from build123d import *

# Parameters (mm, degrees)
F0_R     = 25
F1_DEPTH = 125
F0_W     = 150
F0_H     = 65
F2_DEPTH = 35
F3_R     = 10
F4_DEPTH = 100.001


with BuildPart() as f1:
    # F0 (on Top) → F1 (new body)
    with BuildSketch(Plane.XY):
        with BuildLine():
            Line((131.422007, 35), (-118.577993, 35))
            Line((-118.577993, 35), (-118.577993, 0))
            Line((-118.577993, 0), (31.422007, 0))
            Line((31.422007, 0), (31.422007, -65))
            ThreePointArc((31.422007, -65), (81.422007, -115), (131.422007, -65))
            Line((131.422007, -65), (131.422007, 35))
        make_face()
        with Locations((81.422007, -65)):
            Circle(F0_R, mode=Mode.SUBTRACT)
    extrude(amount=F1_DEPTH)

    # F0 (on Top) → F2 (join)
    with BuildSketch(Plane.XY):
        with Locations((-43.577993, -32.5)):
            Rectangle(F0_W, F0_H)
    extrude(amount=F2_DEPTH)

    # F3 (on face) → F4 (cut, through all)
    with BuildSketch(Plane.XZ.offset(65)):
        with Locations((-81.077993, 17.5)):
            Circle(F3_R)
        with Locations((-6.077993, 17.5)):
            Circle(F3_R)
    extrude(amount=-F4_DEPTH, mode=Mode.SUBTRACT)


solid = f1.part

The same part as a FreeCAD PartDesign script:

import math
import FreeCAD as App
import Part
import Sketcher
Q = App.Units.Quantity

doc = App.newDocument("Part")
body = doc.addObject("PartDesign::Body", "Body")

# Sketch on XY plane
sketch1 = body.newObject("Sketcher::SketchObject", "Sketch")
sketch1.AttachmentSupport = (doc.getObject("XY_Plane"), [""])
sketch1.MapMode = "FlatFace"
sketch1.addGeometry([
    Part.LineSegment(App.Vector(131, 35, 0), App.Vector(-119, 35, 0)),  # 0
    Part.LineSegment(App.Vector(-119, 35, 0), App.Vector(-119, 0, 0)),  # 1
    Part.LineSegment(App.Vector(-119, 0, 0), App.Vector(31, 0, 0)),  # 2
    Part.LineSegment(App.Vector(31, 0, 0), App.Vector(31, -65, 0)),  # 3
    Part.ArcOfCircle(Part.Circle(App.Vector(81, -65, 0), App.Vector(0, 0, 1), 50), math.radians(180), math.radians(360)),  # 4
    Part.LineSegment(App.Vector(131, -65, 0), App.Vector(131, 35, 0)),  # 5
    Part.Circle(App.Vector(81, -65, 0), App.Vector(0, 0, 1), 25),  # 6
], False)
sketch1.addConstraint([
    Sketcher.Constraint("Coincident", 0, 2, 1, 1),
    Sketcher.Constraint("Coincident", 1, 2, 2, 1),
    Sketcher.Constraint("Coincident", 2, 2, 3, 1),
    Sketcher.Constraint("Tangent", 3, 2, 4, 1),
    Sketcher.Constraint("Tangent", 4, 2, 5, 1),
    Sketcher.Constraint("Coincident", 5, 2, 0, 1),
    Sketcher.Constraint("Horizontal", 0),
    Sketcher.Constraint("Vertical", 1),
    Sketcher.Constraint("Horizontal", 2),
    Sketcher.Constraint("Vertical", 3),
    Sketcher.Constraint("Vertical", 5),
    Sketcher.Constraint("Coincident", 6, 3, 4, 3),
    Sketcher.Constraint("PointOnObject", 1, 2, -1),
    Sketcher.Constraint("Diameter", 6, Q("50 mm")),
    Sketcher.Constraint("Radius", 4, Q("50 mm")),
    Sketcher.Constraint("DistanceX", 0, 2, 0, 1, Q("250 mm")),
    Sketcher.Constraint("DistanceY", 1, 2, 1, 1, Q("35 mm")),
    Sketcher.Constraint("DistanceY", 3, 2, 3, 1, Q("65 mm")),
    Sketcher.Constraint("DistanceX", -1, 1, 4, 3, Q("81.422007 mm")),
])
pad1 = body.newObject("PartDesign::Pad", "Pad")
pad1.Profile = sketch1
pad1.Length = 125

# Sketch on XY plane
sketch2 = body.newObject("Sketcher::SketchObject", "Sketch001")
sketch2.AttachmentSupport = (doc.getObject("XY_Plane"), [""])
sketch2.MapMode = "FlatFace"
sketch2.addGeometry([
    Part.LineSegment(App.Vector(-119, 0, 0), App.Vector(-119, -65, 0)),
    Part.LineSegment(App.Vector(-119, -65, 0), App.Vector(31, -65, 0)),
    Part.LineSegment(App.Vector(31, -65, 0), App.Vector(31, 0, 0)),
    Part.LineSegment(App.Vector(31, 0, 0), App.Vector(-119, 0, 0)),
], False)
sketch2.addConstraint([
    Sketcher.Constraint("Coincident", 0, 2, 1, 1),
    Sketcher.Constraint("Coincident", 1, 2, 2, 1),
    Sketcher.Constraint("Coincident", 2, 2, 3, 1),
    Sketcher.Constraint("Coincident", 3, 2, 0, 1),
    Sketcher.Constraint("Vertical", 0),
    Sketcher.Constraint("Horizontal", 1),
    Sketcher.Constraint("Vertical", 2),
    Sketcher.Constraint("Horizontal", 3),
    Sketcher.Constraint("PointOnObject", 2, 2, -1),
    Sketcher.Constraint("DistanceX", 1, 1, 1, 2, Q("150 mm")),
    Sketcher.Constraint("DistanceY", 0, 2, 0, 1, Q("65 mm")),
    Sketcher.Constraint("DistanceX", 0, 2, -1, 1, Q("118.577993 mm")),
])
pad2 = body.newObject("PartDesign::Pad", "Pad001")
pad2.Profile = sketch2
pad2.Length = 35

# Sketch on XZ plane
sketch3 = body.newObject("Sketcher::SketchObject", "Sketch002")
sketch3.AttachmentSupport = (doc.getObject("XZ_Plane"), [""])
sketch3.MapMode = "FlatFace"
sketch3.AttachmentOffset = App.Placement(App.Vector(0, 0, 65), App.Rotation())
sketch3.addGeometry([
    Part.Circle(App.Vector(-81, 18, 0), App.Vector(0, 0, 1), 10),
    Part.Circle(App.Vector(-6, 18, 0), App.Vector(0, 0, 1), 10),
], False)
sketch3.addConstraint([
    Sketcher.Constraint("Equal", 0, 1),
    Sketcher.Constraint("Horizontal", 0, 3, 1, 3),
    Sketcher.Constraint("Diameter", 0, Q("20 mm")),
    Sketcher.Constraint("DistanceX", 0, 3, 1, 3, Q("75 mm")),
    Sketcher.Constraint("DistanceY", -1, 1, 0, 3, Q("17.5 mm")),
    Sketcher.Constraint("DistanceX", 0, 3, -1, 1, Q("81.077993 mm")),
])
pocket1 = body.newObject("PartDesign::Pocket", "Pocket")
pocket1.Profile = sketch3
pocket1.Type = "ThroughAll"

doc.recompute()
